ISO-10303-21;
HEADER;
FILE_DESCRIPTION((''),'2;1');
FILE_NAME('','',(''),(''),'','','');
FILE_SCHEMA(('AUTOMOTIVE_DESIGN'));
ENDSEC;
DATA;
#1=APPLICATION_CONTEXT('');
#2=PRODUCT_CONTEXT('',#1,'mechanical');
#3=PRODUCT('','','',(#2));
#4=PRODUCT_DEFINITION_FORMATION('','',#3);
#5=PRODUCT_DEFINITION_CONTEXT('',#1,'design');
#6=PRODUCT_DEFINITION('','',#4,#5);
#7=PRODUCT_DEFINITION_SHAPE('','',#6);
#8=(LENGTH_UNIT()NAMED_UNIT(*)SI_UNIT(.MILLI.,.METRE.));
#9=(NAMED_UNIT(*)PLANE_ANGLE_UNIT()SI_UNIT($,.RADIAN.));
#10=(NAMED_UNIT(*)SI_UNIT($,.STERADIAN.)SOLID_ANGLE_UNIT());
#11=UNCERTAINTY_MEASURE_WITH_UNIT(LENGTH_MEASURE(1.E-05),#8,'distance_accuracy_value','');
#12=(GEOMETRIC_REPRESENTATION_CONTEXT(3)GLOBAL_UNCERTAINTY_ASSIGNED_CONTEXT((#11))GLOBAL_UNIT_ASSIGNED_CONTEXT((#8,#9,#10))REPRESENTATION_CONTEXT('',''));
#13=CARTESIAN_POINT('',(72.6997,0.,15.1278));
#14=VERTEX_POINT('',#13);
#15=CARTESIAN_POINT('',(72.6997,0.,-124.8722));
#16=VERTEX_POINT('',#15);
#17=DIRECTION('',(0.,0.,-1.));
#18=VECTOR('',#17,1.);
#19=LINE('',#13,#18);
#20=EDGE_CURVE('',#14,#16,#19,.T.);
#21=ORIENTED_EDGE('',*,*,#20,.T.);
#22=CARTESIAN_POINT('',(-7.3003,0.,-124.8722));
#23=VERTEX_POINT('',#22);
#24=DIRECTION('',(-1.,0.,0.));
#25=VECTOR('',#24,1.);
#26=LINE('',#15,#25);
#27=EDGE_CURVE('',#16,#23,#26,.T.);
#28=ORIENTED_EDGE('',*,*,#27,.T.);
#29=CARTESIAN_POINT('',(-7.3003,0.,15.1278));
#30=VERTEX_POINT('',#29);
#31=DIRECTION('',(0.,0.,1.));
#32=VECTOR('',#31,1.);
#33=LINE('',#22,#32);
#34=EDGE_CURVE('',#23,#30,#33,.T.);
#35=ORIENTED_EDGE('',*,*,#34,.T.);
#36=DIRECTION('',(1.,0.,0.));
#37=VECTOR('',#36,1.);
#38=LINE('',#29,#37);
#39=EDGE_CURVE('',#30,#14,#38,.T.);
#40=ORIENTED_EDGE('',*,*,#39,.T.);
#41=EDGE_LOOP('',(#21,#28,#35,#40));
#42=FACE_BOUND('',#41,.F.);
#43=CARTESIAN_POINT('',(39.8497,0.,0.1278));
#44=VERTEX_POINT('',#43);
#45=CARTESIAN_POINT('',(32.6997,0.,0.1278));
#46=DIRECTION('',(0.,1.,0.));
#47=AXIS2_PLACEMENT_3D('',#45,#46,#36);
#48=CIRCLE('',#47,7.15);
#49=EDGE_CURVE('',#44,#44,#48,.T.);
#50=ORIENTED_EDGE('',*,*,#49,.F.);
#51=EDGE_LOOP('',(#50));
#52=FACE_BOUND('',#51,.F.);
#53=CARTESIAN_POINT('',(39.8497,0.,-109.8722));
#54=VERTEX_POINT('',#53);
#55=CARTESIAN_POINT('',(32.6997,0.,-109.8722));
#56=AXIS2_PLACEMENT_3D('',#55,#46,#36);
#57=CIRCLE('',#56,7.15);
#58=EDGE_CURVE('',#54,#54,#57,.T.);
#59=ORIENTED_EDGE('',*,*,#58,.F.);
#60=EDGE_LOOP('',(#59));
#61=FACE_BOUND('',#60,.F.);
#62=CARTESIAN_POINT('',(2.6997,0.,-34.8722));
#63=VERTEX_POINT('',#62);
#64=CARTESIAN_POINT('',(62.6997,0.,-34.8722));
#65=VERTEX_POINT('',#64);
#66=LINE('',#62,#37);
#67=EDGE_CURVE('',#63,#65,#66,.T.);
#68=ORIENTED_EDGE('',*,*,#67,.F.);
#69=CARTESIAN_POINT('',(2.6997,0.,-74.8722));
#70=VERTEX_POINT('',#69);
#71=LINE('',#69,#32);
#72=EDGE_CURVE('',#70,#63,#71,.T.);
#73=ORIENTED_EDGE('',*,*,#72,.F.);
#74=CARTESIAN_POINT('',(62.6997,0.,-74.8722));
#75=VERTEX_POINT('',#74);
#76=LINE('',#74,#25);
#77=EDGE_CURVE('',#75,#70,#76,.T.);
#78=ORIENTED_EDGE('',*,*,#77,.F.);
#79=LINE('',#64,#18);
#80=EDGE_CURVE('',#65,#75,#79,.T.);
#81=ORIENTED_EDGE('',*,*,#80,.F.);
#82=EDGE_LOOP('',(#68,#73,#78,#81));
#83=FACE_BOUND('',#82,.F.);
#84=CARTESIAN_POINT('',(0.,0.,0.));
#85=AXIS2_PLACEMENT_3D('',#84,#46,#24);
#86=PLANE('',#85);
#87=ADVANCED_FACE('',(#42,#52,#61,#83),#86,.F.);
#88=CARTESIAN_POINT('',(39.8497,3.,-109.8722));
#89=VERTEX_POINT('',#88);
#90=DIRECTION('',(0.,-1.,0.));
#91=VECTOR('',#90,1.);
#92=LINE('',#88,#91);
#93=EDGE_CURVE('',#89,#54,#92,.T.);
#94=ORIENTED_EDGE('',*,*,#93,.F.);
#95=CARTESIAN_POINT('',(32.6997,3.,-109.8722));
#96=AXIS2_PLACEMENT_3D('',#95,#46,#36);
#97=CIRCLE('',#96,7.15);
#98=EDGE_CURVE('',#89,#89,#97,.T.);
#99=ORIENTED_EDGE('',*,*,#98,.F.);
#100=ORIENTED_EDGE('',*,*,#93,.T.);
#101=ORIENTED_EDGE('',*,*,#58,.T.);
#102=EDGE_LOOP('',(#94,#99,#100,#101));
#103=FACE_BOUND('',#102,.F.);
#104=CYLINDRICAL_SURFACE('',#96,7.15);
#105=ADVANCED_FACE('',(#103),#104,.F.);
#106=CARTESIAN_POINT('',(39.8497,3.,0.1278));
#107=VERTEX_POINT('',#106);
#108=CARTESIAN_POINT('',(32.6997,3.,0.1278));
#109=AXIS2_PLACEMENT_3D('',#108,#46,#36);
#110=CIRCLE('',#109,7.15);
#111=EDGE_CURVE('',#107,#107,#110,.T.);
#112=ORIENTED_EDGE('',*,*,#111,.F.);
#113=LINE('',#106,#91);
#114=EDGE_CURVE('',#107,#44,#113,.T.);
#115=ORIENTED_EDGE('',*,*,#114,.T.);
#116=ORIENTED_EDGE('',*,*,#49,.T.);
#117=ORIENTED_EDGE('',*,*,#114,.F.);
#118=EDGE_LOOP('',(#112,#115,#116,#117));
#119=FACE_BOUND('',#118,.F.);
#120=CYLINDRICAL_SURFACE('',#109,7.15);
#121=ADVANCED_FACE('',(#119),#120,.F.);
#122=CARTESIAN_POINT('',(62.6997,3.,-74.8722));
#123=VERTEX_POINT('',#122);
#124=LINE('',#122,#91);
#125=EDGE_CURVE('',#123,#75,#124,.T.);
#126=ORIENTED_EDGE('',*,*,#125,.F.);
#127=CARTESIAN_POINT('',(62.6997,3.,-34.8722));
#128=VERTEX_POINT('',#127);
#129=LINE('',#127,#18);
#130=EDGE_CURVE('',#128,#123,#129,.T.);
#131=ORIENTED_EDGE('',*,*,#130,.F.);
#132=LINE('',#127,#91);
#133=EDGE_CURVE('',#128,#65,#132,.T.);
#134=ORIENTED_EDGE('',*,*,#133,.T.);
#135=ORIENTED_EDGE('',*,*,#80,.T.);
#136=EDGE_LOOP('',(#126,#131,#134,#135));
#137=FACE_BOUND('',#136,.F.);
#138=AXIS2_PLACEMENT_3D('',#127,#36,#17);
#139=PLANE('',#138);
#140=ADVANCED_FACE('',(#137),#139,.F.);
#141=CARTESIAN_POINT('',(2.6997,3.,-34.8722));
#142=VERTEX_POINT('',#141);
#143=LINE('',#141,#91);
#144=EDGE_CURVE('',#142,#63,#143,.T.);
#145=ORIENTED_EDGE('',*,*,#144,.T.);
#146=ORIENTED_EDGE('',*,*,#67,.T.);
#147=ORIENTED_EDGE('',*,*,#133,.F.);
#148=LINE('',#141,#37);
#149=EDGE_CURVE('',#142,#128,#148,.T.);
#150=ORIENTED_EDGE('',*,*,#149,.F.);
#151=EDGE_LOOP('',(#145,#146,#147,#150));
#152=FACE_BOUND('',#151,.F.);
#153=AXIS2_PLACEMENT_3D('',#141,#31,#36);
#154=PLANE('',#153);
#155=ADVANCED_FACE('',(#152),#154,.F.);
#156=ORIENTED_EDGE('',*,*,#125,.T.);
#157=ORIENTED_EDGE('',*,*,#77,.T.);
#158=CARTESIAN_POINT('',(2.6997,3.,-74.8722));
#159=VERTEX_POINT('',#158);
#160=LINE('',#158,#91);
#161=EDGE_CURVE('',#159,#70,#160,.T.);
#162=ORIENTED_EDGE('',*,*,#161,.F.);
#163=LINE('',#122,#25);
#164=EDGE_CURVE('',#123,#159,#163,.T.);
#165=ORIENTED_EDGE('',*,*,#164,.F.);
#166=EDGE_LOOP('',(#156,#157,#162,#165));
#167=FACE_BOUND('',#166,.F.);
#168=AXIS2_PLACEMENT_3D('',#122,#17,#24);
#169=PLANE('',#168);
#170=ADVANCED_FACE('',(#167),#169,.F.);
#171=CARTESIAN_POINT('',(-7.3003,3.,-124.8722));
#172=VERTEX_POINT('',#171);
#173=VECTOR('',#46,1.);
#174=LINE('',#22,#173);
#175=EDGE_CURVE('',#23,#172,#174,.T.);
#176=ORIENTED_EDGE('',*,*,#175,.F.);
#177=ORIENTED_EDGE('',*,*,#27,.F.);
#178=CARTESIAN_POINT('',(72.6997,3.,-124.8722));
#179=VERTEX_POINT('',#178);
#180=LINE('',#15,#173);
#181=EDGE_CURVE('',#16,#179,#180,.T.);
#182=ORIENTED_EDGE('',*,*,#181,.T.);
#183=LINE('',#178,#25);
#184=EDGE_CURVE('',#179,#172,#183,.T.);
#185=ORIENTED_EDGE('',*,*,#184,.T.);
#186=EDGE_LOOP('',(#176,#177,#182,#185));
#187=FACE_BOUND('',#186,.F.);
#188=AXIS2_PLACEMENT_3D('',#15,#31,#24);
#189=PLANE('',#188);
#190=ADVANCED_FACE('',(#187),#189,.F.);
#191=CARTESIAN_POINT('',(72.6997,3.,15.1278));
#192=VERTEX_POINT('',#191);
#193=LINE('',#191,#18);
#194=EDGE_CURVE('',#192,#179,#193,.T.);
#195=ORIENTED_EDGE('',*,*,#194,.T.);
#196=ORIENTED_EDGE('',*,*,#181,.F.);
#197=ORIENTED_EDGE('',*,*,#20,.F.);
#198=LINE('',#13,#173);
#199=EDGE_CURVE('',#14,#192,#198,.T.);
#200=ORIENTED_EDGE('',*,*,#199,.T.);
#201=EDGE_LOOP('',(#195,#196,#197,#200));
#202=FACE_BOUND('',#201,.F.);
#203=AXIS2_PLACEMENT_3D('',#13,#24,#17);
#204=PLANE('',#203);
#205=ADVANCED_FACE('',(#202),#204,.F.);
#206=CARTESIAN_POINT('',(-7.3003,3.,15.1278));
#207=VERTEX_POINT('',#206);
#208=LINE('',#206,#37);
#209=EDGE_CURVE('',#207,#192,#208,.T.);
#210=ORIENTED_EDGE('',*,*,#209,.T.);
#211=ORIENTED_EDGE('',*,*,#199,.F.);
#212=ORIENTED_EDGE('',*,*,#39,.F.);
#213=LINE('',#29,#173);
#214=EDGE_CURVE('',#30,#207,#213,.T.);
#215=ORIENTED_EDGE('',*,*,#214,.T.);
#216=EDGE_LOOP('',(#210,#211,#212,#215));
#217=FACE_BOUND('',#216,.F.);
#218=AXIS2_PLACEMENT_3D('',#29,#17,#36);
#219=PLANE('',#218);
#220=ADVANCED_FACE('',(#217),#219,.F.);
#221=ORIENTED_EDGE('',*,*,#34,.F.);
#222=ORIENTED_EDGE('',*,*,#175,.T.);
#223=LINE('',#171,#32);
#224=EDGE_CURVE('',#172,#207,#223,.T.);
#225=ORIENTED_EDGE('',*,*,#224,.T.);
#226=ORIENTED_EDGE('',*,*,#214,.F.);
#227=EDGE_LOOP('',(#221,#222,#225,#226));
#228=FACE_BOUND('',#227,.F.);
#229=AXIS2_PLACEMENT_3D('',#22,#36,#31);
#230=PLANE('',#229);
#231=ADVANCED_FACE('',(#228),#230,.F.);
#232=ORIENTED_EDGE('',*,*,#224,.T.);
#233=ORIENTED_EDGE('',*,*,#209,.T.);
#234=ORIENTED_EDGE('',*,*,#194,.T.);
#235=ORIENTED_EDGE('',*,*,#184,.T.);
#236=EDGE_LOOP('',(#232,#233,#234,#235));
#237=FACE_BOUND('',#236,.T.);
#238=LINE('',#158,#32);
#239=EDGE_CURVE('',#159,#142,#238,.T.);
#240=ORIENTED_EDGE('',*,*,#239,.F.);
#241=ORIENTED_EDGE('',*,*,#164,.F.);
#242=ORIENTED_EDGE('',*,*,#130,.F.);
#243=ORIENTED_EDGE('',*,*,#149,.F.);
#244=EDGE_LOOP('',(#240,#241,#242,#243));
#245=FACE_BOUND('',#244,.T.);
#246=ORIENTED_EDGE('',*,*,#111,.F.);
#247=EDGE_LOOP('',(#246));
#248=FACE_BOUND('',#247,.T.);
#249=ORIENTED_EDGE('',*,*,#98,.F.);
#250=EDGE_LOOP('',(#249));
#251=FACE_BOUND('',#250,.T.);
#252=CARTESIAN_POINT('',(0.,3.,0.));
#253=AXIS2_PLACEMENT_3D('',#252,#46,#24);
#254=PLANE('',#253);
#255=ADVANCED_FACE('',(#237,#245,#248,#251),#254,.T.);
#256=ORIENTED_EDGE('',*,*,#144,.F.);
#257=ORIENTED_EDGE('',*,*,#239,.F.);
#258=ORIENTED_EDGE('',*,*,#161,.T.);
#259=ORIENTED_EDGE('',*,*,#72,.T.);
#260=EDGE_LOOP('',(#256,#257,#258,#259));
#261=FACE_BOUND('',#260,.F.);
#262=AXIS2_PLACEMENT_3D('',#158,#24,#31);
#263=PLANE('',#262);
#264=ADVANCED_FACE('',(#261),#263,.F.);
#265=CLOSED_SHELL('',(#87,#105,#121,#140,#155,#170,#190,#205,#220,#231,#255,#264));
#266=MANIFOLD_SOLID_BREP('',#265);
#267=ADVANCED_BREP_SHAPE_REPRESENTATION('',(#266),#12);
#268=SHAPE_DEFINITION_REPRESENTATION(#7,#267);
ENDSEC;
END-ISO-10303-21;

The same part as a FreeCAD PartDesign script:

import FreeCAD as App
import Part
import Sketcher
from FreeCAD import Vector
Q = App.Units.Quantity

doc = App.newDocument("Part")
params = doc.addObject("Spreadsheet::Sheet", "Params")
for row, (alias, value) in enumerate([
    ("pad1_length", "0.1181102 in"),
    ("sketch2_diameter", "0.563 in"),
    ("pocket1_length", "0.1181102 in"),
], start=1):
    params.set(f"A{row}", alias)
    params.set(f"B{row}", "=" + value)
    params.setAlias(f"B{row}", alias)

body = doc.addObject("PartDesign::Body", "Body")

# Sketch on XZ plane
sketch1 = doc.addObject("Sketcher::SketchObject", "Sketch")
body.addObject(sketch1)
sketch1.AttachmentSupport = (doc.XZ_Plane, [""])
sketch1.MapMode = "FlatFace"
sketch1.addGeometry([
    Part.LineSegment(Vector(-7.3003, -124.8722, 0), Vector(-7.3003, 15.1278, 0)),
    Part.LineSegment(Vector(-7.3003, 15.1278, 0), Vector(72.6997, 15.1278, 0)),
    Part.LineSegment(Vector(72.6997, 15.1278, 0), Vector(72.6997, -124.8722, 0)),
    Part.LineSegment(Vector(72.6997, -124.8722, 0), Vector(-7.3003, -124.8722, 0)),
], False)
sketch1.addConstraint([
    Sketcher.Constraint("Coincident", 0, 2, 1, 1),
    Sketcher.Constraint("Coincident", 1, 2, 2, 1),
    Sketcher.Constraint("Coincident", 2, 2, 3, 1),
    Sketcher.Constraint("Coincident", 3, 2, 0, 1),
    Sketcher.Constraint("Vertical", 0),
    Sketcher.Constraint("Horizontal", 1),
    Sketcher.Constraint("Vertical", 2),
    Sketcher.Constraint("Horizontal", 3),
    Sketcher.Constraint("DistanceX", 1, 1, 1, 2, Q("3.1496 in")),
    Sketcher.Constraint("DistanceY", 0, 1, 0, 2, Q("5.5118 in")),
    Sketcher.Constraint("DistanceX", -1, 1, 1, 2, Q("2.8622 in")),
    Sketcher.Constraint("DistanceY", -1, 1, 0, 2, 15.1278),
])
pad1 = doc.addObject("PartDesign::Pad", "Pad")
body.addObject(pad1)
pad1.Profile = sketch1
pad1.setExpression("Length", "Params.pad1_length")
pad1.Reversed = True

# Sketch on XZ plane
sketch2 = doc.addObject("Sketcher::SketchObject", "Sketch001")
body.addObject(sketch2)
sketch2.AttachmentSupport = (doc.XZ_Plane, [""])
sketch2.MapMode = "FlatFace"
sketch2.AttachmentOffset = App.Placement(Vector(0, 0, -0.1181102 * 25.4), App.Rotation())
sketch2.addGeometry([
    Part.LineSegment(Vector(2.6997, -74.8722, 0), Vector(2.6997, -34.8722, 0)),  # 0
    Part.LineSegment(Vector(2.6997, -34.8722, 0), Vector(62.6997, -34.8722, 0)),  # 1
    Part.LineSegment(Vector(62.6997, -34.8722, 0), Vector(62.6997, -74.8722, 0)),  # 2
    Part.LineSegment(Vector(62.6997, -74.8722, 0), Vector(2.6997, -74.8722, 0)),  # 3
    Part.Circle(Vector(32.6997, 0.1278, 0), Vector(0, 0, 1), 7.15),  # 4
    Part.Circle(Vector(32.6997, -109.8722, 0), Vector(0, 0, 1), 7.15),  # 5
], False)
sketch2.addConstraint([
    Sketcher.Constraint("Coincident", 0, 2, 1, 1),
    Sketcher.Constraint("Coincident", 1, 2, 2, 1),
    Sketcher.Constraint("Coincident", 2, 2, 3, 1),
    Sketcher.Constraint("Coincident", 3, 2, 0, 1),
    Sketcher.Constraint("Vertical", 0),
    Sketcher.Constraint("Horizontal", 1),
    Sketcher.Constraint("Vertical", 2),
    Sketcher.Constraint("Horizontal", 3),
    Sketcher.Constraint("Equal", 4, 5),
    Sketcher.Constraint("Vertical", 4, 3, 5, 3),
    Sketcher.Constraint("Diameter", 4, Q("0.563 in")),
    Sketcher.Constraint("DistanceX", 1, 1, 1, 2, Q("2.3622 in")),
    Sketcher.Constraint("DistanceY", 0, 1, 0, 2, Q("1.5748 in")),
    Sketcher.Constraint("DistanceX", -1, 1, 4, 3, Q("1.2874 in")),
    Sketcher.Constraint("DistanceX", -1, 1, 1, 2, Q("2.4685 in")),
    Sketcher.Constraint("DistanceY", 5, 3, 4, 3, Q("4.3307 in")),
    Sketcher.Constraint("DistanceY", -1, 1, 4, 3, 0.1278),
    Sketcher.Constraint("DistanceY", 0, 2, -1, 1, 34.8722),
])
sketch2.setExpression("Constraints[10]", "Params.sketch2_diameter")
pocket1 = doc.addObject("PartDesign::Pocket", "Pocket")
body.addObject(pocket1)
pocket1.Profile = sketch2
pocket1.setExpression("Length", "Params.pocket1_length")
pocket1.Reversed = True

doc.recompute()
